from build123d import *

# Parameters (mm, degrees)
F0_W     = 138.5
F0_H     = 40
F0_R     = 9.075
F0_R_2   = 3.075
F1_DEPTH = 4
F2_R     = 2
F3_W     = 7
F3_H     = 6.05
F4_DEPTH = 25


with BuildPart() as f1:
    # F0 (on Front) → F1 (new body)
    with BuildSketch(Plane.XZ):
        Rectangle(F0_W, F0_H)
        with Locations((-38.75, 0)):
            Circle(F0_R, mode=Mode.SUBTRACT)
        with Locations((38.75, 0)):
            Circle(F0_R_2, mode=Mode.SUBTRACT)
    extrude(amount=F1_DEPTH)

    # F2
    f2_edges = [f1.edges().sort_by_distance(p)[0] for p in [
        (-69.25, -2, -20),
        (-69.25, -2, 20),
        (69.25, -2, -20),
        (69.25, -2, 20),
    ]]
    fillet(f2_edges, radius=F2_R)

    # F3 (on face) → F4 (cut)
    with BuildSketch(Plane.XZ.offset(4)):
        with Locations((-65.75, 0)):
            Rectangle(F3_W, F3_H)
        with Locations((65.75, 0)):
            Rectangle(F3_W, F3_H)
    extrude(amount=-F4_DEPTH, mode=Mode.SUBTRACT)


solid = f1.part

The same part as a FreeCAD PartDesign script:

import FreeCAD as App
import Part
import Sketcher
Q = App.Units.Quantity


def edges_at(feature, points):
    """Names of the edges that pass closest to the given points."""
    edges = feature.Shape.Edges
    near = lambda p: min(range(len(edges)), key=lambda i: edges[i].distToShape(Part.Vertex(*p))[0])
    return sorted({f"Edge{near(p) + 1}" for p in points})


def add_polygon(sketch, points):
    """Adds a closed chain of lines whose ends are joined by coincident constraints."""
    first, n = sketch.GeometryCount, len(points)
    for a, b in zip(points, points[1:] + points[:1]):
        sketch.addGeometry(Part.LineSegment(App.Vector(*a, 0), App.Vector(*b, 0)), False)
    for i in range(n):
        sketch.addConstraint(Sketcher.Constraint("Coincident", first + i, 2, first + (i + 1) % n, 1))

doc = App.newDocument("Part")
body = doc.addObject("PartDesign::Body", "Body")

# Sketch on XZ plane
sketch1 = doc.addObject("Sketcher::SketchObject", "Sketch")
body.addObject(sketch1)
sketch1.AttachmentSupport = (doc.XZ_Plane, [""])
sketch1.MapMode = "FlatFace"
add_polygon(sketch1, [(-69.25, 20), (-69.25, -20), (69.25, -20), (69.25, 20)])  # lines 0-3
sketch1.addGeometry(Part.Circle(App.Vector(-38.75, 0, 0), App.Vector(0, 0, 1), 9.075), False)  # 4
sketch1.addGeometry(Part.Circle(App.Vector(38.75, 0, 0), App.Vector(0, 0, 1), 3.075), False)  # 5
sketch1.addConstraint([
    Sketcher.Constraint("Vertical", 0),
    Sketcher.Constraint("Horizontal", 1),
    Sketcher.Constraint("Vertical", 2),
    Sketcher.Constraint("Horizontal", 3),
    Sketcher.Constraint("Symmetric", 4, 3, 5, 3, -1, 1),
    Sketcher.Constraint("Symmetric", 0, 2, 2, 2, -1, 1),
    Sketcher.Constraint("PointOnObject", 4, 3, -1),
    Sketcher.Constraint("Diameter", 4, Q("18.15 mm")),
    Sketcher.Constraint("Diameter", 5, Q("6.15 mm")),
    Sketcher.Constraint("DistanceY", 0, 2, 0, 1, Q("40 mm")),
    Sketcher.Constraint("DistanceX", 1, 1, 1, 2, Q("138.5 mm")),
    Sketcher.Constraint("DistanceX", 0, 2, 5, 3, Q("108 mm")),
])
pad1 = doc.addObject("PartDesign::Pad", "Pad")
body.addObject(pad1)
pad1.Profile = sketch1
pad1.Length = 4
doc.recompute()

fillet = doc.addObject("PartDesign::Fillet", "Fillet")
body.addObject(fillet)
fillet.Base = (pad1, edges_at(pad1, [
    (-69.25, -2, -20),
    (-69.25, -2, 20),
    (69.25, -2, -20),
    (69.25, -2, 20),
]))
fillet.Radius = 2

# Sketch on XZ plane
sketch2 = doc.addObject("Sketcher::SketchObject", "Sketch001")
body.addObject(sketch2)
sketch2.AttachmentSupport = (doc.XZ_Plane, [""])
sketch2.MapMode = "FlatFace"
sketch2.AttachmentOffset = App.Placement(App.Vector(0, 0, 4), App.Rotation())
add_polygon(sketch2, [(-69.25, 3.025), (-69.25, -3.025), (-62.25, -3.025), (-62.25, 3.025)])  # lines 0-3
add_polygon(sketch2, [(62.25, 3.025), (62.25, -3.025), (69.25, -3.025), (69.25, 3.025)])  # lines 4-7
sketch2.addConstraint([
    Sketcher.Constraint("Vertical", 0),
    Sketcher.Constraint("Horizontal", 1),
    Sketcher.Constraint("Vertical", 2),
    Sketcher.Constraint("Horizontal", 3),
    Sketcher.Constraint("Vertical", 4),
    Sketcher.Constraint("Horizontal", 5),
    Sketcher.Constraint("Vertical", 6),
    Sketcher.Constraint("Horizontal", 7),
    Sketcher.Constraint("Symmetric", 2, 2, 4, 2, -1, 1),
    Sketcher.Constraint("Symmetric", 0, 2, 6, 2, -1, 1),
    Sketcher.Constraint("Horizontal", 1, 2, 4, 2),
    Sketcher.Constraint("DistanceX", 1, 1, 1, 2, Q("7 mm")),
    Sketcher.Constraint("DistanceY", 0, 2, 0, 1, Q("6.05 mm")),
    Sketcher.Constraint("DistanceX", 1, 2, 4, 2, Q("124.5 mm")),
])
pocket1 = doc.addObject("PartDesign::Pocket", "Pocket")
body.addObject(pocket1)
pocket1.Profile = sketch2
pocket1.Length = 25

doc.recompute()
